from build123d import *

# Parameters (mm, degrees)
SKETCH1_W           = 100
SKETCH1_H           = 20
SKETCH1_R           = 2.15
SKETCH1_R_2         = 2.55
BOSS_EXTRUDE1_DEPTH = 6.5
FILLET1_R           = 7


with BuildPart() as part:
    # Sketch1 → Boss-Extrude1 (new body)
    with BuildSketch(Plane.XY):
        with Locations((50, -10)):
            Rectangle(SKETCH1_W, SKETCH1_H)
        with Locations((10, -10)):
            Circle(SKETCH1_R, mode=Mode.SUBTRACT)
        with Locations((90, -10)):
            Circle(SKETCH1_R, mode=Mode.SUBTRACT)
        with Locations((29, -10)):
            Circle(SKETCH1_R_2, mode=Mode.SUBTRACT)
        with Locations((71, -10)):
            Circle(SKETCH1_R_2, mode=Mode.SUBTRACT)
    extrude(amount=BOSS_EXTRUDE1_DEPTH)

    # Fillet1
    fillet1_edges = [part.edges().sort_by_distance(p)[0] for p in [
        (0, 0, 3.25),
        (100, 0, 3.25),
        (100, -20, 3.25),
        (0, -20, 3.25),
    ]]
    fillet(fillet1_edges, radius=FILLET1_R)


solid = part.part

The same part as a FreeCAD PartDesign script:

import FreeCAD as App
import Part
import Sketcher
Q = App.Units.Quantity


def edges_at(feature, points):
    """Names of the edges that pass closest to the given points."""
    edges = feature.Shape.Edges
    near = lambda p: min(range(len(edges)), key=lambda i: edges[i].distToShape(Part.Vertex(*p))[0])
    return sorted({f"Edge{near(p) + 1}" for p in points})


def add_polygon(sketch, points):
    """Adds a closed chain of lines whose ends are joined by coincident constraints."""
    first, n = sketch.GeometryCount, len(points)
    for a, b in zip(points, points[1:] + points[:1]):
        sketch.addGeometry(Part.LineSegment(App.Vector(*a, 0), App.Vector(*b, 0)), False)
    for i in range(n):
        sketch.addConstraint(Sketcher.Constraint("Coincident", first + i, 2, first + (i + 1) % n, 1))

doc = App.newDocument("Part")
body = doc.addObject("PartDesign::Body", "Body")

# Sketch on XY plane
sketch1 = body.newObject("Sketcher::SketchObject", "Sketch")
sketch1.AttachmentSupport = (doc.getObject("XY_Plane"), [""])
sketch1.MapMode = "FlatFace"
add_polygon(sketch1, [(0, 0), (0, -20), (100, -20), (100, 0)])  # lines 0-3
sketch1.addGeometry(Part.Circle(App.Vector(10, -10, 0), App.Vector(0, 0, 1), 2.15), False)  # 4
sketch1.addGeometry(Part.Circle(App.Vector(29, -10, 0), App.Vector(0, 0, 1), 2.55), False)  # 5
sketch1.addGeometry(Part.Circle(App.Vector(71, -10, 0), App.Vector(0, 0, 1), 2.55), False)  # 6
sketch1.addGeometry(Part.Circle(App.Vector(90, -10, 0), App.Vector(0, 0, 1), 2.15), False)  # 7
sketch1.addConstraint(Sketcher.Constraint("Vertical", 0))
sketch1.addConstraint(Sketcher.Constraint("Horizontal", 1))
sketch1.addConstraint(Sketcher.Constraint("Vertical", 2))
sketch1.addConstraint(Sketcher.Constraint("Horizontal", 3))
sketch1.addConstraint(Sketcher.Constraint("Coincident", 3, 2, -1, 1))
sketch1.addConstraint(Sketcher.Constraint("Equal", 5, 6))
sketch1.addConstraint(Sketcher.Constraint("Equal", 4, 7))
sketch1.addConstraint(Sketcher.Constraint("Horizontal", 4, 3, 5, 3))
sketch1.addConstraint(Sketcher.Constraint("Horizontal", 5, 3, 6, 3))
sketch1.addConstraint(Sketcher.Constraint("Horizontal", 6, 3, 7, 3))
sketch1.addConstraint(Sketcher.Constraint("Diameter", 4, Q("4.3 mm")))
sketch1.addConstraint(Sketcher.Constraint("Diameter", 5, Q("5.1 mm")))
sketch1.addConstraint(Sketcher.Constraint("DistanceX", 1, 1, 1, 2, Q("100 mm")))
sketch1.addConstraint(Sketcher.Constraint("DistanceY", 0, 2, 0, 1, Q("20 mm")))
sketch1.addConstraint(Sketcher.Constraint("DistanceX", -1, 1, 4, 3, Q("10 mm")))
sketch1.addConstraint(Sketcher.Constraint("DistanceY", 4, 3, -1, 1, Q("10 mm")))
sketch1.addConstraint(Sketcher.Constraint("DistanceX", -1, 1, 5, 3, Q("29 mm")))
sketch1.addConstraint(Sketcher.Constraint("DistanceX", -1, 1, 6, 3, Q("71 mm")))
sketch1.addConstraint(Sketcher.Constraint("DistanceX", -1, 1, 7, 3, Q("90 mm")))
pad1 = body.newObject("PartDesign::Pad", "Pad")
pad1.Profile = sketch1
pad1.Length = 6.5
doc.recompute()

fillet = body.newObject("PartDesign::Fillet", "Fillet")
fillet.Base = (pad1, edges_at(pad1, [
    (0, 0, 3.25),
    (100, 0, 3.25),
    (100, -20, 3.25),
    (0, -20, 3.25),
]))
fillet.Radius = 7

doc.recompute()
